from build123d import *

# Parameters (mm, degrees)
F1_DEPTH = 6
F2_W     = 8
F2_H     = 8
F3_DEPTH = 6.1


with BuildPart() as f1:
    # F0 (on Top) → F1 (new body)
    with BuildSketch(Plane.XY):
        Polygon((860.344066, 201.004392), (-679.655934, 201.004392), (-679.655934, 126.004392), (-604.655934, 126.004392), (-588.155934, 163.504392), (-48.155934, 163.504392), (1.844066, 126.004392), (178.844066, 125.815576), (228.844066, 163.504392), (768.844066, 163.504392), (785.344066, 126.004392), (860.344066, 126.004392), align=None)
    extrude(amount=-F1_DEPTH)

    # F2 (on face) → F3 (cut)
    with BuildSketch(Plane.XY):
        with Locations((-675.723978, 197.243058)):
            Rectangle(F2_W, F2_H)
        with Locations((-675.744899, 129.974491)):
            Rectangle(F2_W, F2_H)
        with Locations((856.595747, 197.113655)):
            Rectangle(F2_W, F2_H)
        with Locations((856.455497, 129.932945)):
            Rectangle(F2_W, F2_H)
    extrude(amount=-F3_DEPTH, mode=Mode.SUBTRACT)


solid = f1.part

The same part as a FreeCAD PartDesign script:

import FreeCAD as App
import Part
import Sketcher

V = App.Vector
Q = App.Units.Quantity


def add_polygon(sketch, points):
    """Adds a closed chain of lines whose ends are joined by coincident constraints."""
    first, n = sketch.GeometryCount, len(points)
    for a, b in zip(points, points[1:] + points[:1]):
        sketch.addGeometry(Part.LineSegment(App.Vector(*a, 0), App.Vector(*b, 0)), False)
    for i in range(n):
        sketch.addConstraint(Sketcher.Constraint("Coincident", first + i, 2, first + (i + 1) % n, 1))

doc = App.newDocument("Part")
body = doc.addObject("PartDesign::Body", "Body")

sketch1 = body.newObject("Sketcher::SketchObject", "Sketch")
sketch1.AttachmentSupport = (doc.getObject("XY_Plane"), [""])
sketch1.MapMode = "FlatFace"
add_polygon(sketch1, [(860, 201), (-680, 201), (-680, 126), (-605, 126), (-588, 164), (-48, 164), (2, 126), (179, 126), (229, 164), (769, 164), (785, 126), (860, 126)])
sketch1.addConstraint([
    Sketcher.Constraint("Horizontal", 0),
    Sketcher.Constraint("Vertical", 1),
    Sketcher.Constraint("Horizontal", 2),
    Sketcher.Constraint("Horizontal", 4),
    Sketcher.Constraint("Horizontal", 8),
    Sketcher.Constraint("Horizontal", 10),
    Sketcher.Constraint("Vertical", 11),
    Sketcher.Constraint("Horizontal", 2, 2, 5, 2),
    Sketcher.Constraint("Horizontal", 4, 2, 7, 2),
    Sketcher.Constraint("Horizontal", 5, 2, 9, 2),
    Sketcher.Constraint("Equal", 4, 8),
    Sketcher.Constraint("Equal", 2, 10),
    Sketcher.Constraint("Equal", 10, 1),
    Sketcher.Constraint("Equal", 3, 9),
    Sketcher.Constraint("DistanceX", 0, 2, 0, 1, Q("1540 mm")),
    Sketcher.Constraint("DistanceX", 2, 1, 2, 2, Q("75 mm")),
    Sketcher.Constraint("DistanceX", 4, 1, 4, 2, Q("540 mm")),
    Sketcher.Constraint("DistanceX", 4, 2, 5, 2, Q("50 mm")),
    Sketcher.Constraint("DistanceX", 5, 2, 6, 2, Q("177 mm")),
    Sketcher.Constraint("DistanceX", 6, 2, 7, 2, Q("50 mm")),
    Sketcher.Constraint("Distance", 5, Q("62.5 mm")),
    Sketcher.Constraint("Distance", 7, Q("62.613472 mm")),
    Sketcher.Constraint("DistanceY", -1, 1, 0, 2, Q("201.004392 mm")),
    Sketcher.Constraint("DistanceX", 0, 2, -1, 1, Q("679.655934 mm")),
])
pad1 = body.newObject("PartDesign::Pad", "Pad")
pad1.Profile = sketch1
pad1.Length = 6
pad1.Reversed = True

sketch2 = body.newObject("Sketcher::SketchObject", "Sketch001")
sketch2.AttachmentSupport = (doc.getObject("XY_Plane"), [""])
sketch2.MapMode = "FlatFace"
add_polygon(sketch2, [(-680, 201), (-680, 193), (-672, 193), (-672, 201)])
add_polygon(sketch2, [(-680, 134), (-680, 126), (-672, 126), (-672, 134)])
add_polygon(sketch2, [(853, 201), (853, 193), (861, 193), (861, 201)])
add_polygon(sketch2, [(852, 134), (852, 126), (860, 126), (860, 134)])
sketch2.addConstraint([
    Sketcher.Constraint("Vertical", 0),
    Sketcher.Constraint("Horizontal", 1),
    Sketcher.Constraint("Vertical", 2),
    Sketcher.Constraint("Horizontal", 3),
    Sketcher.Constraint("Vertical", 4),
    Sketcher.Constraint("Horizontal", 5),
    Sketcher.Constraint("Vertical", 6),
    Sketcher.Constraint("Horizontal", 7),
    Sketcher.Constraint("Vertical", 8),
    Sketcher.Constraint("Horizontal", 9),
    Sketcher.Constraint("Vertical", 10),
    Sketcher.Constraint("Horizontal", 11),
    Sketcher.Constraint("Vertical", 12),
    Sketcher.Constraint("Horizontal", 13),
    Sketcher.Constraint("Vertical", 14),
    Sketcher.Constraint("Horizontal", 15),
    Sketcher.Constraint("Equal", 3, 5),
    Sketcher.Constraint("Equal", 7, 9),
    Sketcher.Constraint("Equal", 11, 13),
    Sketcher.Constraint("Equal", 15, 0),
    Sketcher.Constraint("Equal", 2, 4),
    Sketcher.Constraint("Equal", 6, 8),
    Sketcher.Constraint("Equal", 10, 12),
    Sketcher.Constraint("DistanceX", 1, 1, 1, 2, Q("8 mm")),
    Sketcher.Constraint("DistanceX", 4, 2, -1, 1, Q("679.744899 mm")),
    Sketcher.Constraint("DistanceX", 0, 2, -1, 1, Q("679.723978 mm")),
    Sketcher.Constraint("DistanceY", -1, 1, 4, 2, Q("125.974491 mm")),
    Sketcher.Constraint("DistanceX", 12, 2, 8, 2, Q("0.14025 mm")),
    Sketcher.Constraint("DistanceY", 12, 2, 8, 2, Q("67.18071 mm")),
    Sketcher.Constraint("DistanceY", -1, 1, 0, 2, Q("193.243058 mm")),
    Sketcher.Constraint("DistanceX", -1, 1, 8, 2, Q("852.595747 mm")),
    Sketcher.Constraint("DistanceY", -1, 1, 8, 2, Q("193.113655 mm")),
])
pocket1 = body.newObject("PartDesign::Pocket", "Pocket")
pocket1.Profile = sketch2
pocket1.Length = 6.1

doc.recompute()
